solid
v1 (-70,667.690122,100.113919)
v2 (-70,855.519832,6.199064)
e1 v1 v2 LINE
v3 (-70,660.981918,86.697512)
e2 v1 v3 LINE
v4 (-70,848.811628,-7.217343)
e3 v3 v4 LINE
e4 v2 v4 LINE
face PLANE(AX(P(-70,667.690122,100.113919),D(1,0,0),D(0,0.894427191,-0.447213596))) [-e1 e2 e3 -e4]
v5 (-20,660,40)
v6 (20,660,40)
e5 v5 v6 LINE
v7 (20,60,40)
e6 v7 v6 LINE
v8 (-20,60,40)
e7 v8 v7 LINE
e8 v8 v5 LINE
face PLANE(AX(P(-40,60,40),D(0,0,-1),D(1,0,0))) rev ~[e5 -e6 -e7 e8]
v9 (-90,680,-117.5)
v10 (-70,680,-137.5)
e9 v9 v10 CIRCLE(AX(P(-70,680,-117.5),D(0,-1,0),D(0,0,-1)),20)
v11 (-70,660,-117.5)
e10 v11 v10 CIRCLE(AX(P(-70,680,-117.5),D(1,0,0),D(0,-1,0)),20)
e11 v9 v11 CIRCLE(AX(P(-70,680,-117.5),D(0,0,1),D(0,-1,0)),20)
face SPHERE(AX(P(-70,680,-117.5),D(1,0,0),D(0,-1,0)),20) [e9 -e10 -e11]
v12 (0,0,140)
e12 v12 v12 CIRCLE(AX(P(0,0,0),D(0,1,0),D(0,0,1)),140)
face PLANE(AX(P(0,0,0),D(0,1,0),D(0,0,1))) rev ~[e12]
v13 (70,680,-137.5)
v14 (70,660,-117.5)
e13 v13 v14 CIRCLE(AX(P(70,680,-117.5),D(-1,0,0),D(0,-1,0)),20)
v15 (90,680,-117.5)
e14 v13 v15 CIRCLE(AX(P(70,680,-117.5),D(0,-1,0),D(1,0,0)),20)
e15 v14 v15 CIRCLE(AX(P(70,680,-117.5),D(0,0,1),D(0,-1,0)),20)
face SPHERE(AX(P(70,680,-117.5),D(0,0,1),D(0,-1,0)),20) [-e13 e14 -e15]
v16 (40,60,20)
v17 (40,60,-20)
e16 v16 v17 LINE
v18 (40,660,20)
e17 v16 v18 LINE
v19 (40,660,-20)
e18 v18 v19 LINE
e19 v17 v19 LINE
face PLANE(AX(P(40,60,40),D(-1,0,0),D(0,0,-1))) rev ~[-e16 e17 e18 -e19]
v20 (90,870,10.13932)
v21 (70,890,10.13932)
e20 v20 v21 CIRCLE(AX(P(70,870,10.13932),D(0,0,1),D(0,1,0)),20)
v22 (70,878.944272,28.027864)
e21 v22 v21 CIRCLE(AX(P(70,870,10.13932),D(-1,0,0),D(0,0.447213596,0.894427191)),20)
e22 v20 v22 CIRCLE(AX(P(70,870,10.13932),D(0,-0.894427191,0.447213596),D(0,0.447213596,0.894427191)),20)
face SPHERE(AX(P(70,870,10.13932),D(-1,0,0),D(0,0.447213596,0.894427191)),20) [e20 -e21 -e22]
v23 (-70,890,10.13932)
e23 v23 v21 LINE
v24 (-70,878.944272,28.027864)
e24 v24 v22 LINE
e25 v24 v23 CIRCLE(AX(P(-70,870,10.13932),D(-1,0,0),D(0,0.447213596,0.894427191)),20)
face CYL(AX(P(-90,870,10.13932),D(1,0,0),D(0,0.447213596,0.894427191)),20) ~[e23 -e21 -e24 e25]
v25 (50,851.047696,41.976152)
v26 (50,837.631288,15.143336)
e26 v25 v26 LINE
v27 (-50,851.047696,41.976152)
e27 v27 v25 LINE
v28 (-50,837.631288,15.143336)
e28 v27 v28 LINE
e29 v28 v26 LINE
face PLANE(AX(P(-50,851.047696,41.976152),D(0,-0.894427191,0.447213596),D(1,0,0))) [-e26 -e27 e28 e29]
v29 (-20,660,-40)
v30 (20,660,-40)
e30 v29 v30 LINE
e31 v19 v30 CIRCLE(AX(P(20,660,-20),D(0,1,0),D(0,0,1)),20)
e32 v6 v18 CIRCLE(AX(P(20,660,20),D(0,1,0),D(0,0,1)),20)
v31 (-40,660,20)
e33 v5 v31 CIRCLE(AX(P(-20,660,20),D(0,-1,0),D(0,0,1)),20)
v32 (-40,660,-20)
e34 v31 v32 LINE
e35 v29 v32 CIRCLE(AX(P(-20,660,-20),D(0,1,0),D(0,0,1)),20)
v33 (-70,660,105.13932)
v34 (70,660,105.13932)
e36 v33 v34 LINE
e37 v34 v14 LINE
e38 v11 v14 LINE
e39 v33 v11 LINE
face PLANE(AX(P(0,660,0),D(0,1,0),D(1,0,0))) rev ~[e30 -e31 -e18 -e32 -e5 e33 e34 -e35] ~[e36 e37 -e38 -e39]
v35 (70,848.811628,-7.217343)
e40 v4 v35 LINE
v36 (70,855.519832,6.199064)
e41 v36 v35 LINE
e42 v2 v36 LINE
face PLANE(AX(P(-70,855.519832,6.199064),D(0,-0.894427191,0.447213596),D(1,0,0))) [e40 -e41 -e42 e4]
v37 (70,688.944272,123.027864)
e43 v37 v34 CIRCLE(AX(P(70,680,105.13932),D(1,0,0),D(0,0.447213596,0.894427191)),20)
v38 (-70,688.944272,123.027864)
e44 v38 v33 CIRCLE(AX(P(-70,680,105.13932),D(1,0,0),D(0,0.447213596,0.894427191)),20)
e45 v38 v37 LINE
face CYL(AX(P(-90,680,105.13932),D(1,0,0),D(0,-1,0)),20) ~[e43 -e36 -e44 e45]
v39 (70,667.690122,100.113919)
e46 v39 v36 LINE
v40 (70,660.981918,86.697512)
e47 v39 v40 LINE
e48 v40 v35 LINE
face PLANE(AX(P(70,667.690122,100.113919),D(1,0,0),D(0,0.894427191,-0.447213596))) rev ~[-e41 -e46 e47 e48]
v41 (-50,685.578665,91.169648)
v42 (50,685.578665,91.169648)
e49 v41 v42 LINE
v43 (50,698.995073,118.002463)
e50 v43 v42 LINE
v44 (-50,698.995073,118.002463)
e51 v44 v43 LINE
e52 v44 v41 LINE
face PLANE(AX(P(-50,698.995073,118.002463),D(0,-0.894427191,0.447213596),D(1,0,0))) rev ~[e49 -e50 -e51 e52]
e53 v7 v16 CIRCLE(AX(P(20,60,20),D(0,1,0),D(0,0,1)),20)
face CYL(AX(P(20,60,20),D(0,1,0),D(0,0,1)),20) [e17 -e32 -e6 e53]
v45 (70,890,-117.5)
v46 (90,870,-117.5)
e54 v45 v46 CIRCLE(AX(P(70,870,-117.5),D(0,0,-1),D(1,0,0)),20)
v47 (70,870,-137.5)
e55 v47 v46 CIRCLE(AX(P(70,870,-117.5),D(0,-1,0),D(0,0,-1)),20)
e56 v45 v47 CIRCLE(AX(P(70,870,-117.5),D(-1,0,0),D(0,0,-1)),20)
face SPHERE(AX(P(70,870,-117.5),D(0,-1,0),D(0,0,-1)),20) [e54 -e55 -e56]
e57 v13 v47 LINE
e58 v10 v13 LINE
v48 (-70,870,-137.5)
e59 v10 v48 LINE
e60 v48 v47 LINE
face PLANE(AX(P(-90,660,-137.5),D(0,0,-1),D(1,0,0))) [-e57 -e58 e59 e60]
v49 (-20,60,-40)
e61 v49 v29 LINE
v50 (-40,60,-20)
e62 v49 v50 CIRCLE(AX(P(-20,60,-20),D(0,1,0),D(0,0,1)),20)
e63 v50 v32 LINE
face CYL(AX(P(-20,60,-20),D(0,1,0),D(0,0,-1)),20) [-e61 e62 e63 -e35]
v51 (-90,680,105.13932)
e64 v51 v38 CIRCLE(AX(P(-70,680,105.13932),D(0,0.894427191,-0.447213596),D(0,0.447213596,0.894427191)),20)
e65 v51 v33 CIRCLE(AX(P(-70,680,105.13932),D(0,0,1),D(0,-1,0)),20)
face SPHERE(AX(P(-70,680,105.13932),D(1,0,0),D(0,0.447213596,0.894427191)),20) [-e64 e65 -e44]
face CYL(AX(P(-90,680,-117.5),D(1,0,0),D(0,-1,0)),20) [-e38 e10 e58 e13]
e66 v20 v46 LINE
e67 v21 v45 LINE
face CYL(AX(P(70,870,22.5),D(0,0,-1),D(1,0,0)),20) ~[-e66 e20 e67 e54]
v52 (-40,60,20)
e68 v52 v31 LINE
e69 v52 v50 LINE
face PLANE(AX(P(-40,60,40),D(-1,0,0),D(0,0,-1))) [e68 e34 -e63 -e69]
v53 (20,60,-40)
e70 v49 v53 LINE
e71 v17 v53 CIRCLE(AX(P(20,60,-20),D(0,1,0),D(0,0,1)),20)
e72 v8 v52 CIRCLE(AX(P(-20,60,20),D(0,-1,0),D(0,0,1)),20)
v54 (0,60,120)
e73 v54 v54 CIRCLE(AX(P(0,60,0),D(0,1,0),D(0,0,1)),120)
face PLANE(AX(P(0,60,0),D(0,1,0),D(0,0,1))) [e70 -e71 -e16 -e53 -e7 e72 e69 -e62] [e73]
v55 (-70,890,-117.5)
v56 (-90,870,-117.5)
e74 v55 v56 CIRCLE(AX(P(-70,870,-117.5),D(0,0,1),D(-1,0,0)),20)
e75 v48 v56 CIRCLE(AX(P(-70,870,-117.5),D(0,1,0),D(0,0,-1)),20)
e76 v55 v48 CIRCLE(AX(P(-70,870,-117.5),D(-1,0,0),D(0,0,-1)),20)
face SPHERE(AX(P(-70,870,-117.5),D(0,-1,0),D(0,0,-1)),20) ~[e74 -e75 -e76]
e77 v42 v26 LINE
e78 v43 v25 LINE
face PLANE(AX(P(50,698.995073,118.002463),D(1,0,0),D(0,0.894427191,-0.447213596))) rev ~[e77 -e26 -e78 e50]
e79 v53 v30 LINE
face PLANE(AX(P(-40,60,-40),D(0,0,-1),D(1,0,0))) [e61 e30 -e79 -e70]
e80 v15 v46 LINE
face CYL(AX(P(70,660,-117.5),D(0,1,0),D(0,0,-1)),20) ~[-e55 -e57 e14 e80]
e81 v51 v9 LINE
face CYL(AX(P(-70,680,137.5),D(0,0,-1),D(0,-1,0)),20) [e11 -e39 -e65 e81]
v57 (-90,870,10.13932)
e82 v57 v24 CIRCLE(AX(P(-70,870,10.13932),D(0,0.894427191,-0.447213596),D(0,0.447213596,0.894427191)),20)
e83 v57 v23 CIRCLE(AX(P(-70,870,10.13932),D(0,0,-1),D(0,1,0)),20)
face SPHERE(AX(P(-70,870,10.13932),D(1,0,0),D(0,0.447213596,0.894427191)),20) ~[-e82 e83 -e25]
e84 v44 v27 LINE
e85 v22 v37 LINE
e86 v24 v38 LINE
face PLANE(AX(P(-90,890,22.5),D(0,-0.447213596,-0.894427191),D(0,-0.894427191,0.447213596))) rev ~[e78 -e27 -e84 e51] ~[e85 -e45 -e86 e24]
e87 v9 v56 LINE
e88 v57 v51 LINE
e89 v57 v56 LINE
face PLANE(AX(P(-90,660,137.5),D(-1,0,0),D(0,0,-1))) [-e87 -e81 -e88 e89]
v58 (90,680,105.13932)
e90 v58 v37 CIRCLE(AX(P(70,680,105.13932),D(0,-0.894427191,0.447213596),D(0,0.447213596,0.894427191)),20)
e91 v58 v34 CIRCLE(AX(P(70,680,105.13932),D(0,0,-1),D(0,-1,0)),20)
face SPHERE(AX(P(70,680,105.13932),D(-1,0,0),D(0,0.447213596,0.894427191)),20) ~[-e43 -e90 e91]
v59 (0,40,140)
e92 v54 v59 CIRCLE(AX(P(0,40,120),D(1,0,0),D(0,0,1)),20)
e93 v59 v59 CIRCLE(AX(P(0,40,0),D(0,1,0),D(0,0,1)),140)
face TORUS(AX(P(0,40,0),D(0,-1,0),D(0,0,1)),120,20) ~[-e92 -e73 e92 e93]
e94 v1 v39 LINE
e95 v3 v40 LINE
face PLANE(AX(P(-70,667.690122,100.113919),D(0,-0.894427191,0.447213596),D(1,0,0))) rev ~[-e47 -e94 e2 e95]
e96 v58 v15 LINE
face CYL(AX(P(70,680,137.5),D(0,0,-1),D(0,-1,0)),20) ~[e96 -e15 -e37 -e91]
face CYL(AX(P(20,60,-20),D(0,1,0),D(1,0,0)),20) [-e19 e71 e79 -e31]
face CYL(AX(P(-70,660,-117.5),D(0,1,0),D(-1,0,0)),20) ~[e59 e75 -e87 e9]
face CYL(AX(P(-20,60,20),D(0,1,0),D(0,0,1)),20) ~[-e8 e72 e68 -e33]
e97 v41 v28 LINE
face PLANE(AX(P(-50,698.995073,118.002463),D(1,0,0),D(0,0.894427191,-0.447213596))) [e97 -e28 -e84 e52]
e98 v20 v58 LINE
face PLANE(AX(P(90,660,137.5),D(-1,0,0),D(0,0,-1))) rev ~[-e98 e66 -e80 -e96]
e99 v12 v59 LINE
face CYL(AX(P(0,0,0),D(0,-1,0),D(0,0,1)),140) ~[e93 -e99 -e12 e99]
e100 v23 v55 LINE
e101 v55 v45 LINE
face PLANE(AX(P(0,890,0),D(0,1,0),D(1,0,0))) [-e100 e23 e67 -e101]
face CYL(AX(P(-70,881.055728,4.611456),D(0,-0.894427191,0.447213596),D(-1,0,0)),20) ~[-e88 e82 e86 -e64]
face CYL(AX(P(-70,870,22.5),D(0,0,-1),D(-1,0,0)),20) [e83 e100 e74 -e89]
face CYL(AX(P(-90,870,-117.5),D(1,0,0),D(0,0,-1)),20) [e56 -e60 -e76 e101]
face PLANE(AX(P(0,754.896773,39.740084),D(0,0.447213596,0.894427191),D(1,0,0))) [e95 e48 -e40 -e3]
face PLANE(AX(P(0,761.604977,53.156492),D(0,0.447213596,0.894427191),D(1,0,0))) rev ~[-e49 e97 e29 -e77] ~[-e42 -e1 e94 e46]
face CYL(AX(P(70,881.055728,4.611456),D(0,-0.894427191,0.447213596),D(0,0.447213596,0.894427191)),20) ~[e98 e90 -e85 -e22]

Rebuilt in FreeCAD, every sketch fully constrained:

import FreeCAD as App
import Part
import Sketcher
from FreeCAD import Vector


def edges_at(feature, points):
    """Names of the edges that pass closest to the given points."""
    edges = feature.Shape.Edges
    near = lambda p: min(range(len(edges)), key=lambda i: edges[i].distToShape(Part.Vertex(*p))[0])
    return sorted({f"Edge{near(p) + 1}" for p in points})


def add_polygon(sketch, points):
    """Adds a closed chain of lines whose ends are joined by coincident constraints."""
    first, n = sketch.GeometryCount, len(points)
    for a, b in zip(points, points[1:] + points[:1]):
        sketch.addGeometry(Part.LineSegment(App.Vector(*a, 0), App.Vector(*b, 0)), False)
    for i in range(n):
        sketch.addConstraint(Sketcher.Constraint("Coincident", first + i, 2, first + (i + 1) % n, 1))

doc = App.newDocument("Part")
params = doc.addObject("Spreadsheet::Sheet", "Params")
for row, (alias, value) in enumerate([
    ("sketch1_diameter", "280 mm"),
    ("pad1_length", "60 mm"),
    ("sketch2_width", "80 mm"),
    ("pad2_length", "600 mm"),
    ("sketch3_width", "180 mm"),
    ("sketch3_height", "275 mm"),
    ("pad3_length", "230 mm"),
    ("sketch4_width", "230 mm"),
    ("sketch4_height", "115 mm"),
    ("sketch5_width", "100 mm"),
    ("sketch5_height", "170 mm"),
    ("pocket2_length", "30 mm"),
    ("sketch6_width", "140 mm"),
    ("sketch6_height", "210 mm"),
    ("pocket3_length", "15 mm"),
    ("fillet_radius", "20 mm"),
    ("fillet2_radius", "20 mm"),
    ("fillet3_radius", "20 mm"),
], start=1):
    params.set(f"A{row}", alias)
    params.set(f"B{row}", "=" + value)
    params.setAlias(f"B{row}", alias)

body = doc.addObject("PartDesign::Body", "Body")

sketch1 = body.newObject("Sketcher::SketchObject", "Sketch")
sketch1.AttachmentSupport = (doc.getObject("XZ_Plane"), [""])
sketch1.MapMode = "FlatFace"
sketch1.addGeometry(Part.Circle(Vector(0, 0, 0), Vector(0, 0, 1), 140), False)
sketch1.addConstraint([
    Sketcher.Constraint("Coincident", 0, 3, -1, 1),
    Sketcher.Constraint("Diameter", 0, 280.0),
])
sketch1.setExpression("Constraints[1]", "Params.sketch1_diameter")
pad1 = body.newObject("PartDesign::Pad", "Pad")
pad1.Profile = sketch1
pad1.setExpression("Length", "Params.pad1_length")
pad1.Reversed = True

sketch2 = body.newObject("Sketcher::SketchObject", "Sketch001")
sketch2.AttachmentSupport = (doc.getObject("XZ_Plane"), [""])
sketch2.MapMode = "FlatFace"
sketch2.AttachmentOffset = App.Placement(Vector(0, 0, -60), App.Rotation())
add_polygon(sketch2, [(-40, -40), (-40, 40), (40, 40), (40, -40)])
sketch2.addConstraint([
    Sketcher.Constraint("Vertical", 0),
    Sketcher.Constraint("Horizontal", 1),
    Sketcher.Constraint("Vertical", 2),
    Sketcher.Constraint("Horizontal", 3),
    Sketcher.Constraint("Symmetric", 0, 2, 2, 2, -1, 1),
    Sketcher.Constraint("Equal", 3, 0),
    Sketcher.Constraint("DistanceX", 1, 1, 1, 2, 80.0),
])
sketch2.setExpression("Constraints[10]", "Params.sketch2_width")
pad2 = body.newObject("PartDesign::Pad", "Pad001")
pad2.Profile = sketch2
pad2.setExpression("Length", "Params.pad2_length")
pad2.Reversed = True

sketch3 = body.newObject("Sketcher::SketchObject", "Sketch002")
sketch3.AttachmentSupport = (doc.getObject("XZ_Plane"), [""])
sketch3.MapMode = "FlatFace"
sketch3.AttachmentOffset = App.Placement(Vector(0, 0, -660), App.Rotation())
add_polygon(sketch3, [(-90, -138), (-90, 138), (90, 138), (90, -138)])
sketch3.addConstraint([
    Sketcher.Constraint("Vertical", 0),
    Sketcher.Constraint("Horizontal", 1),
    Sketcher.Constraint("Vertical", 2),
    Sketcher.Constraint("Horizontal", 3),
    Sketcher.Constraint("Symmetric", 0, 2, 2, 2, -1, 1),
    Sketcher.Constraint("DistanceX", 1, 1, 1, 2, 180.0),
    Sketcher.Constraint("DistanceY", 0, 1, 0, 2, 275.0),
])
sketch3.setExpression("Constraints[9]", "Params.sketch3_width")
sketch3.setExpression("Constraints[10]", "Params.sketch3_height")
pad3 = body.newObject("PartDesign::Pad", "Pad002")
pad3.Profile = sketch3
pad3.setExpression("Length", "Params.pad3_length")
pad3.Reversed = True

sketch4 = body.newObject("Sketcher::SketchObject", "Sketch003")
sketch4.AttachmentSupport = (doc.getObject("YZ_Plane"), [""])
sketch4.MapMode = "FlatFace"
sketch4.AttachmentOffset = App.Placement(Vector(0, 0, -90), App.Rotation())
add_polygon(sketch4, [(890, 22), (660, 138), (890, 138)])
sketch4.addConstraint([
    Sketcher.Constraint("Horizontal", 1),
    Sketcher.Constraint("Vertical", 2),
    Sketcher.Constraint("DistanceX", 1, 1, 1, 2, 230.0),
    Sketcher.Constraint("DistanceY", 2, 2, 2, 1, 115.0),
    Sketcher.Constraint("DistanceX", -1, 1, 0, 2, 660.0),
    Sketcher.Constraint("DistanceY", -1, 1, 0, 2, 137.5),
])
sketch4.setExpression("Constraints[5]", "Params.sketch4_width")
sketch4.setExpression("Constraints[6]", "Params.sketch4_height")
pocket1 = body.newObject("PartDesign::Pocket", "Pocket")
pocket1.Profile = sketch4
pocket1.Type = "ThroughAll"
pocket1.Reversed = True

sketch5 = body.newObject("Sketcher::SketchObject", "Sketch004")
sketch5.Placement = App.Placement(Vector(0, 187, 374), App.Rotation(Vector(1, 0, 0), Vector(0, 0.894427191, -0.447213595), Vector(0, 0.447213595, 0.894427191), "ZXY"))
add_polygon(sketch5, [(-50, 742), (-50, 572), (50, 572), (50, 742)])
sketch5.addConstraint([
    Sketcher.Constraint("Vertical", 0),
    Sketcher.Constraint("Horizontal", 1),
    Sketcher.Constraint("Vertical", 2),
    Sketcher.Constraint("Horizontal", 3),
    Sketcher.Constraint("DistanceX", 1, 1, 1, 2, 100.0),
    Sketcher.Constraint("DistanceY", 0, 2, 0, 1, 170.0),
    Sketcher.Constraint("DistanceX", 0, 2, -1, 1, 50.0),
    Sketcher.Constraint("DistanceY", -1, 1, 0, 2, 572.427894),
])
sketch5.setExpression("Constraints[8]", "Params.sketch5_width")
sketch5.setExpression("Constraints[9]", "Params.sketch5_height")
pocket2 = body.newObject("PartDesign::Pocket", "Pocket001")
pocket2.Profile = sketch5
pocket2.setExpression("Length", "Params.pocket2_length")

sketch6 = body.newObject("Sketcher::SketchObject", "Sketch005")
sketch6.Placement = App.Placement(Vector(0, 173.583592, 347.167184), App.Rotation(Vector(1, 0, 0), Vector(0, 0.894427191, -0.447213595), Vector(0, 0.447213595, 0.894427191), "ZXY"))
add_polygon(sketch6, [(-70, 762), (-70, 552), (70, 552), (70, 762)])
sketch6.addConstraint([
    Sketcher.Constraint("Vertical", 0),
    Sketcher.Constraint("Horizontal", 1),
    Sketcher.Constraint("Vertical", 2),
    Sketcher.Constraint("Horizontal", 3),
    Sketcher.Constraint("DistanceX", 1, 1, 1, 2, 140.0),
    Sketcher.Constraint("DistanceY", 0, 2, 0, 1, 210.0),
    Sketcher.Constraint("DistanceX", 0, 2, -1, 1, 70.0),
    Sketcher.Constraint("DistanceY", -1, 1, 0, 2, 552.427894),
])
sketch6.setExpression("Constraints[8]", "Params.sketch6_width")
sketch6.setExpression("Constraints[9]", "Params.sketch6_height")
pocket3 = body.newObject("PartDesign::Pocket", "Pocket002")
pocket3.Profile = sketch6
pocket3.setExpression("Length", "Params.pocket3_length")
doc.recompute()

fillet = body.newObject("PartDesign::Fillet", "Fillet")
fillet.Base = (pocket3, edges_at(pocket3, [
    (0, 60, -140),
    (40, 360, 40),
    (40, 360, -40),
    (-40, 360, -40),
]))
fillet.setExpression("Radius", "Params.fillet_radius")
doc.recompute()

fillet2 = body.newObject("PartDesign::Fillet", "Fillet001")
fillet2.Base = (fillet, edges_at(fillet, [(-40, 360, 40)]))
fillet2.setExpression("Radius", "Params.fillet2_radius")
doc.recompute()

fillet3 = body.newObject("PartDesign::Fillet", "Fillet002")
fillet3.Base = (fillet2, edges_at(fillet2, [
    (90, 660, 0),
    (0, 660, -137.5),
    (90, 775, -137.5),
    (-90, 660, 0),
    (-90, 775, -137.5),
    (0, 660, 137.5),
    (0, 890, -137.5),
    (-90, 890, -57.5),
    (90, 890, -57.5),
    (0, 890, 22.5),
    (90, 775, 80),
    (-90, 775, 80),
]))
fillet3.setExpression("Radius", "Params.fillet3_radius")

doc.recompute()
